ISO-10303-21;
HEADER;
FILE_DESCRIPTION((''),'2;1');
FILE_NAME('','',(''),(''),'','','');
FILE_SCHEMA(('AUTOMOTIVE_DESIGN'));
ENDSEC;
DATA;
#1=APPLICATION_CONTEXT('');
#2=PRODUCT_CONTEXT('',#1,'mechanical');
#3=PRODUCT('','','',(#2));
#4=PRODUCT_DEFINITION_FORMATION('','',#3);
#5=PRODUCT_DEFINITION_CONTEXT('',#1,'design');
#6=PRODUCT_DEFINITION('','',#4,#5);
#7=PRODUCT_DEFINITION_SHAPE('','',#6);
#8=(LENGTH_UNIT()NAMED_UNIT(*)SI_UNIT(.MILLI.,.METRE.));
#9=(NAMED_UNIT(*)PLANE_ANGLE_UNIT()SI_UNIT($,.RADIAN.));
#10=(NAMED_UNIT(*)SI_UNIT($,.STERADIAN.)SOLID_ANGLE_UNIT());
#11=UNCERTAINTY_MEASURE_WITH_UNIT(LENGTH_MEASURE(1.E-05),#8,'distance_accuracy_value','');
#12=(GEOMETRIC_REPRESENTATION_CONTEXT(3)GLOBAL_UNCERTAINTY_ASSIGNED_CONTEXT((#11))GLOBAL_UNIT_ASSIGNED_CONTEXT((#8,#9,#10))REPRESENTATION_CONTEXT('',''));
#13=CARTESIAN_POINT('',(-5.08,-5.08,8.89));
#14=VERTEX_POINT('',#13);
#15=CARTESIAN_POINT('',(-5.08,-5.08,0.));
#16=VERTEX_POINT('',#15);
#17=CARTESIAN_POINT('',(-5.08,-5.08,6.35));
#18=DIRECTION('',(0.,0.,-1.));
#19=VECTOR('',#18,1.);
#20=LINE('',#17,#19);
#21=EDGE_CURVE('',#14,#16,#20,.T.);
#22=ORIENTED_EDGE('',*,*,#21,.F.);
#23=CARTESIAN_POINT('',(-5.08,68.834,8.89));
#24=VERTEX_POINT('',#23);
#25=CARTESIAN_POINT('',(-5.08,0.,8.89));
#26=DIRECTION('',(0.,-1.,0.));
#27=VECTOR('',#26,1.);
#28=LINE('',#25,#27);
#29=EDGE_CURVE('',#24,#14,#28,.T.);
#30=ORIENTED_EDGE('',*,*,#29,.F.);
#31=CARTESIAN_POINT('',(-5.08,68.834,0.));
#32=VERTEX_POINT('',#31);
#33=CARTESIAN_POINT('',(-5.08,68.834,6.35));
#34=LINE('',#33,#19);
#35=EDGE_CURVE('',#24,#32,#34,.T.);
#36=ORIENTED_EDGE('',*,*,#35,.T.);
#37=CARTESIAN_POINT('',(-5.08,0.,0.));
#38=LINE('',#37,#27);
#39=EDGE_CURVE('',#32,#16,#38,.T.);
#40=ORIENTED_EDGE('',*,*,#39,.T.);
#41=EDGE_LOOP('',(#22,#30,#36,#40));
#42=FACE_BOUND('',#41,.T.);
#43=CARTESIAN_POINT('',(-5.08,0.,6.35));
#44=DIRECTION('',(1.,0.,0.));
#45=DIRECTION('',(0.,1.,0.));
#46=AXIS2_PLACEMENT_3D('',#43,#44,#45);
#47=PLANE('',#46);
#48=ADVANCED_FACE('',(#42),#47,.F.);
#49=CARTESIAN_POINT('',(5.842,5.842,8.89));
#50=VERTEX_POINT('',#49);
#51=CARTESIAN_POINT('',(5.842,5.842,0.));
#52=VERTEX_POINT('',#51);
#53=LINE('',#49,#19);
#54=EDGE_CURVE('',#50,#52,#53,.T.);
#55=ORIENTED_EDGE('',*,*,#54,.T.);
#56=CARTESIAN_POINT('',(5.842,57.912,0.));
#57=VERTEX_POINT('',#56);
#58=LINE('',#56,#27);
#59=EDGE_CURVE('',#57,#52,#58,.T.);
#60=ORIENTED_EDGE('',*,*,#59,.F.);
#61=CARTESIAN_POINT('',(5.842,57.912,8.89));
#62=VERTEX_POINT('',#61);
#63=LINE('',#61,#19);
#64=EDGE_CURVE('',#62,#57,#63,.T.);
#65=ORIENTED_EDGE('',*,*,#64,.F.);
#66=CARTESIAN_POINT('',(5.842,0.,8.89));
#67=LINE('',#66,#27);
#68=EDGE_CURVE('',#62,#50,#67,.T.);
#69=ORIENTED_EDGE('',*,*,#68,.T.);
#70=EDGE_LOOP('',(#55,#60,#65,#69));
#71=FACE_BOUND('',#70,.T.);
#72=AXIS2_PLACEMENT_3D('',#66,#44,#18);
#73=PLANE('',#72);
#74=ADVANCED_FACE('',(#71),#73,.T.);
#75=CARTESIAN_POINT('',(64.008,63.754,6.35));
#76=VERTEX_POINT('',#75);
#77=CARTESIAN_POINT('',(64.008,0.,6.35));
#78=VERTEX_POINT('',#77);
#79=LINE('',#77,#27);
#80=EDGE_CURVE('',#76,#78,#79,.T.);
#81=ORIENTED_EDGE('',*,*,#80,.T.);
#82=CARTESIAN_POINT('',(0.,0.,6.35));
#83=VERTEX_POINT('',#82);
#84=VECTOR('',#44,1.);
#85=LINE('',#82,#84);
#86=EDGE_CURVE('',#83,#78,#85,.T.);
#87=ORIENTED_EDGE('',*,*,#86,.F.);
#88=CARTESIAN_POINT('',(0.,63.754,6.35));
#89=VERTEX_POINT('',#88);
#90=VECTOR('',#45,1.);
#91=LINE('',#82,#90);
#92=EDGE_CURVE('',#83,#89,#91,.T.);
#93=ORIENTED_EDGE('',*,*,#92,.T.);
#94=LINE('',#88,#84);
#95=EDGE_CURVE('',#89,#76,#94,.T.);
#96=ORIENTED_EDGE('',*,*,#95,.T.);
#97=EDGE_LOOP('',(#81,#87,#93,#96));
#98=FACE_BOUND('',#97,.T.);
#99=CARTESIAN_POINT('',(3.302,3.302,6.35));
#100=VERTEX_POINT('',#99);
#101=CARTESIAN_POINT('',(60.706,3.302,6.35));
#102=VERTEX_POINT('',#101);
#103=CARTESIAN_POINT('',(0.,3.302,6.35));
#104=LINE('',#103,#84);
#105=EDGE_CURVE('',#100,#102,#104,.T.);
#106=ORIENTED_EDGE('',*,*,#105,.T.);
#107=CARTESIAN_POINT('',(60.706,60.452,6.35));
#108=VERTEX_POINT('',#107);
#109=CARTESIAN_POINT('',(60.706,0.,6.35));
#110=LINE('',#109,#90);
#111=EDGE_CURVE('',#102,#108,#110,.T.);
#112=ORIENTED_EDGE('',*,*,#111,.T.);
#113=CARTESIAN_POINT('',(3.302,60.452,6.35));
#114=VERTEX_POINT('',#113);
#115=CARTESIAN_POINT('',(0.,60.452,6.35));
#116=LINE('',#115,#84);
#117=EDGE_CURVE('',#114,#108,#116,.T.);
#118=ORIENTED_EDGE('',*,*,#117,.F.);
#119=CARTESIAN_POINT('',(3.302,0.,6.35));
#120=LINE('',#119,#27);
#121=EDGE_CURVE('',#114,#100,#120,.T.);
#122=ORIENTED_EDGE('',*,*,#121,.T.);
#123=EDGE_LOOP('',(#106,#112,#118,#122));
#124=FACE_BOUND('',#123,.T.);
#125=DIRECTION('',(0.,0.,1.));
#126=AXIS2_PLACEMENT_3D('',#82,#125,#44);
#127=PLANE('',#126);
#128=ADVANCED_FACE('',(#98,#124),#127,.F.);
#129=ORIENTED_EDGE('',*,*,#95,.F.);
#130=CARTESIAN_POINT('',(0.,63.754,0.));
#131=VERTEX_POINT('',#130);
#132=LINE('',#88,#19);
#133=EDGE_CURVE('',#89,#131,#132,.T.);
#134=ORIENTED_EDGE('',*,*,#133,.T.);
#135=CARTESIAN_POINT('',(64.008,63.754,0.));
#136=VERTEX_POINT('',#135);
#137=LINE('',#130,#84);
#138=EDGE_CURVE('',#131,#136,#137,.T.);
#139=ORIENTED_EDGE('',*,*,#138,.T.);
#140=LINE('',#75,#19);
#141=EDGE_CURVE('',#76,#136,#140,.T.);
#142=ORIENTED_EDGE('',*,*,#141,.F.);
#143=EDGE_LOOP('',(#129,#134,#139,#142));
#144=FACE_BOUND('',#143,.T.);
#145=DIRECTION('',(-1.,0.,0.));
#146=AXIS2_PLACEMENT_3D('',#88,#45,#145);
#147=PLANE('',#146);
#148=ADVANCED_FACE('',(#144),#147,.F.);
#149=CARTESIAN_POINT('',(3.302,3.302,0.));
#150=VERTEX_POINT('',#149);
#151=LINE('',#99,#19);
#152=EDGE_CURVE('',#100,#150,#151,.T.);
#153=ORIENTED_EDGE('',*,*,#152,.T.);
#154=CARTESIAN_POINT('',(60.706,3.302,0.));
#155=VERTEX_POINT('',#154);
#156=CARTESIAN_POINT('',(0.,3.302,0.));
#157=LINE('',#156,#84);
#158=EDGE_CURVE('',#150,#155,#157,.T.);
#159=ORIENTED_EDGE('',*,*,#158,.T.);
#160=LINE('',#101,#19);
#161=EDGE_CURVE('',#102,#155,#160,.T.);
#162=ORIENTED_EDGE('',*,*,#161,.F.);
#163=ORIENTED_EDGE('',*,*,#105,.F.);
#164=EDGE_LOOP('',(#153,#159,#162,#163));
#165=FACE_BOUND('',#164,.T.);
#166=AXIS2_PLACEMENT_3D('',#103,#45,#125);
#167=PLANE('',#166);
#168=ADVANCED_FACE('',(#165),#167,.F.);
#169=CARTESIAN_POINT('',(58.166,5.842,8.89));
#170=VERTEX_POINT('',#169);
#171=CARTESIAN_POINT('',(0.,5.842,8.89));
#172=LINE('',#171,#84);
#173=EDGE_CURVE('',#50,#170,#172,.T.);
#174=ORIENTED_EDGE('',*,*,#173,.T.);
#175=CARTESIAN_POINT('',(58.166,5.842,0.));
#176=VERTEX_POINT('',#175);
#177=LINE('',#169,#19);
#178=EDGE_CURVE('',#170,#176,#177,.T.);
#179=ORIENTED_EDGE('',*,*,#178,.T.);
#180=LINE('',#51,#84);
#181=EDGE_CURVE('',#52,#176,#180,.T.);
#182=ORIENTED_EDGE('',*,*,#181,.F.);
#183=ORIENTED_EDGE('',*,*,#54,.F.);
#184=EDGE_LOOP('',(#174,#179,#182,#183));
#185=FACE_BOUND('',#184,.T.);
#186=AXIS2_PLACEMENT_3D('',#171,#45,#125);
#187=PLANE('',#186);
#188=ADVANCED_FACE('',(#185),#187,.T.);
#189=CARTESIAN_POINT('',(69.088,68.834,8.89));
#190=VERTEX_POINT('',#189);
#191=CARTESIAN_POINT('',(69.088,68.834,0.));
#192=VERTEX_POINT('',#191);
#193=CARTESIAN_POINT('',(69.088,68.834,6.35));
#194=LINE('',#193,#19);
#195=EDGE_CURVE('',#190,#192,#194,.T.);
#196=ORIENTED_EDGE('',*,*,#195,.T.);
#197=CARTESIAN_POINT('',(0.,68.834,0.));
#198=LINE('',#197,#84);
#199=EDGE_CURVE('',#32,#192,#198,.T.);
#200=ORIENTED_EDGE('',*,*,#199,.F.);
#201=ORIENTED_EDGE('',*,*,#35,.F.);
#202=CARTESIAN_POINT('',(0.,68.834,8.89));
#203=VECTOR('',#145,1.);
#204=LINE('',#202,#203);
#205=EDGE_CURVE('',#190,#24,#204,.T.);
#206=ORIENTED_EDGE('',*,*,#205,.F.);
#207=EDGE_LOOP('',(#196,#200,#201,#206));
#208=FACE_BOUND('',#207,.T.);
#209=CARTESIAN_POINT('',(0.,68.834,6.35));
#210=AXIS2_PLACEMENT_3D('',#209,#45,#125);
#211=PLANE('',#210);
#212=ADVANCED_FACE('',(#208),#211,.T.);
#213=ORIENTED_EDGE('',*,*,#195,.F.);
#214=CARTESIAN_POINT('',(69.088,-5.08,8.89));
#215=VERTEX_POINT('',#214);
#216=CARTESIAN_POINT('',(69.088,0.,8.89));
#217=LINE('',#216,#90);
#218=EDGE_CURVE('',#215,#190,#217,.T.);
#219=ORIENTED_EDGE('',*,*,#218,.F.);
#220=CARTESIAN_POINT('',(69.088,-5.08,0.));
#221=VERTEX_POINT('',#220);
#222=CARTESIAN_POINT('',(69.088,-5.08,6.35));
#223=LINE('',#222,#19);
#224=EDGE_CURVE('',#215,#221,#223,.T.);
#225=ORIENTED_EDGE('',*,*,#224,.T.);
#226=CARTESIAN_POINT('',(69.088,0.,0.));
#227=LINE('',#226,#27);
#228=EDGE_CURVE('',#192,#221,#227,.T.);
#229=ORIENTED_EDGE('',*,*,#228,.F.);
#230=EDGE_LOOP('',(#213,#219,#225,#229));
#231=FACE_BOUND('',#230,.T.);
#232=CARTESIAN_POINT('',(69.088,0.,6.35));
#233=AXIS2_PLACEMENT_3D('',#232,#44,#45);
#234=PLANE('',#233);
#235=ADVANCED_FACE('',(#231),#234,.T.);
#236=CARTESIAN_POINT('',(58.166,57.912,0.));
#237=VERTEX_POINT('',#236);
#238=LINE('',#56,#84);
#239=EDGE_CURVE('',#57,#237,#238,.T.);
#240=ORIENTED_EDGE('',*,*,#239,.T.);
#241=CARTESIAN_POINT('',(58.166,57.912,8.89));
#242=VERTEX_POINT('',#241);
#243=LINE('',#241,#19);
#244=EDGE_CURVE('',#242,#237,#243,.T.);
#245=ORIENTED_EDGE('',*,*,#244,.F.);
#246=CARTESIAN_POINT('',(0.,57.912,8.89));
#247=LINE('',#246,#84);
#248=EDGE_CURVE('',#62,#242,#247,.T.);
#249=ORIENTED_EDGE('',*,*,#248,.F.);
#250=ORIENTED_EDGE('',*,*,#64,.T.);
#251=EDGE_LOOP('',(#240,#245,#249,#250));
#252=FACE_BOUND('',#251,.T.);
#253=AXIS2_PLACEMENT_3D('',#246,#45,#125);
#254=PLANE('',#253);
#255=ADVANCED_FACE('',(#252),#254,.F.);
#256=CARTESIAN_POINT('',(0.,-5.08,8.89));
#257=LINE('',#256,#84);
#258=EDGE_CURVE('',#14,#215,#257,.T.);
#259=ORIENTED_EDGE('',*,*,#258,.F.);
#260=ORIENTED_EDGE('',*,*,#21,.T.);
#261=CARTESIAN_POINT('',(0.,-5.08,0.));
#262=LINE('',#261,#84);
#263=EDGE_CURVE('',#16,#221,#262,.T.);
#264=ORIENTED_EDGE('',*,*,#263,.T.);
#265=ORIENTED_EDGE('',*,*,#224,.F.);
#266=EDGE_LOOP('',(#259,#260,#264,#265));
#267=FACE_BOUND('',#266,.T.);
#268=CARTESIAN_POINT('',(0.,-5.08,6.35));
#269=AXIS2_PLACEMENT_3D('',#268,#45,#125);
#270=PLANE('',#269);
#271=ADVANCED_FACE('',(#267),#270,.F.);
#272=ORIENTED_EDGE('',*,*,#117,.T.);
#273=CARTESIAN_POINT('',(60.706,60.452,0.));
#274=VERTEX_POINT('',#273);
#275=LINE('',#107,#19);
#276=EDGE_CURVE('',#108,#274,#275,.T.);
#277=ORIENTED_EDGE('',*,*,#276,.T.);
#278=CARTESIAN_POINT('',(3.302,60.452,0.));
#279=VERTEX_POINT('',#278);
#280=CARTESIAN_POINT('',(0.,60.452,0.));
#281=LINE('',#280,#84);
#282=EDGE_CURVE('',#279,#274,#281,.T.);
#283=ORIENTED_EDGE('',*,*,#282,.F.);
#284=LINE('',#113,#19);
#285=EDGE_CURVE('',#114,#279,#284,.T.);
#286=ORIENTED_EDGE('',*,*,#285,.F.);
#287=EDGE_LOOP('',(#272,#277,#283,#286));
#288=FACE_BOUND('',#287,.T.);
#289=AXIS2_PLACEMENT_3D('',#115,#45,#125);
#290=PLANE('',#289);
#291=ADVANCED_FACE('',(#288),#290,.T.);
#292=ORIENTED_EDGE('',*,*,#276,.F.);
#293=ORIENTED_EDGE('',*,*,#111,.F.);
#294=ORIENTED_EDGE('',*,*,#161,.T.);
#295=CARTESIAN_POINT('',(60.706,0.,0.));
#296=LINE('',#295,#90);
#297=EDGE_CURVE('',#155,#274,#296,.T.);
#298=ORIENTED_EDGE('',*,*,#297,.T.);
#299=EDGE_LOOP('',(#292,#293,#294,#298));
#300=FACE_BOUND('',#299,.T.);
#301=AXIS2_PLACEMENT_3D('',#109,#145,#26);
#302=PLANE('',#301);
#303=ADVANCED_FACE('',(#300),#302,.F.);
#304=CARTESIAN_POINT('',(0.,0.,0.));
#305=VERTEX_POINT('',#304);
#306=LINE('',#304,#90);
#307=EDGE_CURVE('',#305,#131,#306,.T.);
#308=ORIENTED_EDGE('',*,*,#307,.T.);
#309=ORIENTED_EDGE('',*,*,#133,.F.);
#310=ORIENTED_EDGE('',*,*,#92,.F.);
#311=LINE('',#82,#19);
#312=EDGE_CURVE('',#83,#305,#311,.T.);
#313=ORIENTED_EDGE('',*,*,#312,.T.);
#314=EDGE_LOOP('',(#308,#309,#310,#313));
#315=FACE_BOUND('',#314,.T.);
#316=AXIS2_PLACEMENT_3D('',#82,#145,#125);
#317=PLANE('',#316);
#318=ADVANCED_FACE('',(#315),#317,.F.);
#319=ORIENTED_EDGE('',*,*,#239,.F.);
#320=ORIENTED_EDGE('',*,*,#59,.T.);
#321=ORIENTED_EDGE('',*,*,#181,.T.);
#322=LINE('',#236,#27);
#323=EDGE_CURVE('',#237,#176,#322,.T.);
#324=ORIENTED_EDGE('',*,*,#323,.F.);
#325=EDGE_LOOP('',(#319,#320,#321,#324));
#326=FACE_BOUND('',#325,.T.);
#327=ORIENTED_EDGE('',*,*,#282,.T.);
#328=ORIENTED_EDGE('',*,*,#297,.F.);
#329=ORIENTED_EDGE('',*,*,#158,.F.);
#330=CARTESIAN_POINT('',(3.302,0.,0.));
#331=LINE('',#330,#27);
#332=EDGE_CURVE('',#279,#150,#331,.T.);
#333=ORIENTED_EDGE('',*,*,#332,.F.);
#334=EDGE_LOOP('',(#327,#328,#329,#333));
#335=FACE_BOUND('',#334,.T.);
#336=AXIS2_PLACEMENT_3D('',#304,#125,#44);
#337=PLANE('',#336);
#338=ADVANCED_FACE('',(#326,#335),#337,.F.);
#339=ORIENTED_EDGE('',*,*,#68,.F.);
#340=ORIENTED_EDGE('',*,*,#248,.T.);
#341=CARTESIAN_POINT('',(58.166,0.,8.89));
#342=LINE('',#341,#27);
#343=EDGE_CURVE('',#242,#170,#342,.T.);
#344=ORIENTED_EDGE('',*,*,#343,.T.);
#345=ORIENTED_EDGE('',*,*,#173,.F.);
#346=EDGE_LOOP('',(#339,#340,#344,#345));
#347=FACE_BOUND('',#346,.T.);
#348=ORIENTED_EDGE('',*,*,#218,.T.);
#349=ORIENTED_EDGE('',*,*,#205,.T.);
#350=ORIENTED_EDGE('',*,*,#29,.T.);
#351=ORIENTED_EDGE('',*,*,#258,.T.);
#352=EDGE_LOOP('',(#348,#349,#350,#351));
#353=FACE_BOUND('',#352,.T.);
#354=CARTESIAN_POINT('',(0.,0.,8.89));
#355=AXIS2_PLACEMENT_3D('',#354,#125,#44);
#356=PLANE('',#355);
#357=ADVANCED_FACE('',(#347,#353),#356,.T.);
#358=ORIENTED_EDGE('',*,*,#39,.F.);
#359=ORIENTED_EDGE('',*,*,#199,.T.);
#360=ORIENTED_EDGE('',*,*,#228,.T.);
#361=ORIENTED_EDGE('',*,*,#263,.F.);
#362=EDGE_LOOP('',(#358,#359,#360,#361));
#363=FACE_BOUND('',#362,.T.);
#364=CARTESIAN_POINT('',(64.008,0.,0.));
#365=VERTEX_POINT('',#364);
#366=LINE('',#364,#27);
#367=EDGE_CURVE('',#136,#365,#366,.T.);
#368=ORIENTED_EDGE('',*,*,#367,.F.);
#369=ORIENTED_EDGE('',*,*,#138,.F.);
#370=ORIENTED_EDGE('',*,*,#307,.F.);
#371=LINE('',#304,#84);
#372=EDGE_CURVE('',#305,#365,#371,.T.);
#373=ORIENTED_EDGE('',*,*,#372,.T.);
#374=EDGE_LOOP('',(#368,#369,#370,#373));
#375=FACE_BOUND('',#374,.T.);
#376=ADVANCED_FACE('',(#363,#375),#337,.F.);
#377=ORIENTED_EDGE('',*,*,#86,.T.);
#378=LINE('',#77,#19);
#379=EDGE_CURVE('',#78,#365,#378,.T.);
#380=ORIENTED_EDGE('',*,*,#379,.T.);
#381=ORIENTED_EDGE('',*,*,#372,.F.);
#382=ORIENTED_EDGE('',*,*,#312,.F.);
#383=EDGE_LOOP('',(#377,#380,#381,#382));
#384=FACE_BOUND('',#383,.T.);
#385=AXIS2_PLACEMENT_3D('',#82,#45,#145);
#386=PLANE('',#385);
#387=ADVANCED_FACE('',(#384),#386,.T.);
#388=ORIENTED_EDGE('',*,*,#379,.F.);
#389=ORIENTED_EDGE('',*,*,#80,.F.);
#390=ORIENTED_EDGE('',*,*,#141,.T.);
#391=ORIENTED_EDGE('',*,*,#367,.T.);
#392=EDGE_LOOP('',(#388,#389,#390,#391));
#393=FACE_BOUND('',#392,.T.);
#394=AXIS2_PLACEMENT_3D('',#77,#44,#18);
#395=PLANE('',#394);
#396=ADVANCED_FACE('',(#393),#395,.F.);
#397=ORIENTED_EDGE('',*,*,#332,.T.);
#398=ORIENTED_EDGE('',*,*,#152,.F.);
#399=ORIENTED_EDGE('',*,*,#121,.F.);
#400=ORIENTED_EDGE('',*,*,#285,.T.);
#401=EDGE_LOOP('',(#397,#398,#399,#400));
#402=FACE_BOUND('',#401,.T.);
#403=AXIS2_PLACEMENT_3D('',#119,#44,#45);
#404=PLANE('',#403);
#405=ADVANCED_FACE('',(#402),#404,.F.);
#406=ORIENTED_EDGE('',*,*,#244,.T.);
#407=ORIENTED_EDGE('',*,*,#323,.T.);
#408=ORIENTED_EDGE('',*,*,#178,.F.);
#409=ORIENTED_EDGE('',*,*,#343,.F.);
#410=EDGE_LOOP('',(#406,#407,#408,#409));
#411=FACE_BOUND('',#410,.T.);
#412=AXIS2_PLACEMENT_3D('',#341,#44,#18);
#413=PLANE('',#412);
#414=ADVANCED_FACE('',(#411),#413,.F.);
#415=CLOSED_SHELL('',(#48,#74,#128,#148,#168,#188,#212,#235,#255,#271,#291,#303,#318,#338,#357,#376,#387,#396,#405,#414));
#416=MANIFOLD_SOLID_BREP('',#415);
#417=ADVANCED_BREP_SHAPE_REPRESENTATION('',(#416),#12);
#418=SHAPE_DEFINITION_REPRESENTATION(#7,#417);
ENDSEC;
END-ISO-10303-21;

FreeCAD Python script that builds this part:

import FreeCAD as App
import Part
import Sketcher

V = App.Vector
Q = App.Units.Quantity

doc = App.newDocument("Part")
body = doc.addObject("PartDesign::Body", "Body")

# Sketch on XY plane
sketch1 = body.newObject("Sketcher::SketchObject", "Sketch")
sketch1.AttachmentSupport = (doc.getObject("XY_Plane"), [""])
sketch1.MapMode = "FlatFace"
sketch1.addGeometry([
    Part.LineSegment(V(3, 60, 0), V(3, 3, 0)),  # 0
    Part.LineSegment(V(3, 3, 0), V(61, 3, 0)),  # 1
    Part.LineSegment(V(61, 3, 0), V(61, 60, 0)),  # 2
    Part.LineSegment(V(61, 60, 0), V(3, 60, 0)),  # 3
    Part.LineSegment(V(58, 6, 0), V(6, 6, 0)),  # 4
    Part.LineSegment(V(6, 6, 0), V(6, 58, 0)),  # 5
    Part.LineSegment(V(6, 58, 0), V(58, 58, 0)),  # 6
    Part.LineSegment(V(58, 58, 0), V(58, 6, 0)),  # 7
], False)
sketch1.addConstraint([
    Sketcher.Constraint("Coincident", 0, 2, 1, 1),
    Sketcher.Constraint("Coincident", 1, 2, 2, 1),
    Sketcher.Constraint("Coincident", 2, 2, 3, 1),
    Sketcher.Constraint("Coincident", 3, 2, 0, 1),
    Sketcher.Constraint("Coincident", 4, 2, 5, 1),
    Sketcher.Constraint("Coincident", 5, 2, 6, 1),
    Sketcher.Constraint("Coincident", 6, 2, 7, 1),
    Sketcher.Constraint("Coincident", 7, 2, 4, 1),
    Sketcher.Constraint("Vertical", 0),
    Sketcher.Constraint("Horizontal", 1),
    Sketcher.Constraint("Vertical", 2),
    Sketcher.Constraint("Horizontal", 3),
    Sketcher.Constraint("Horizontal", 4),
    Sketcher.Constraint("Vertical", 5),
    Sketcher.Constraint("Horizontal", 6),
    Sketcher.Constraint("Vertical", 7),
    Sketcher.Constraint("DistanceX", 1, 1, 1, 2, Q("2.26 in")),
    Sketcher.Constraint("DistanceX", 4, 2, 4, 1, Q("2.06 in")),
    Sketcher.Constraint("DistanceY", 0, 2, 0, 1, Q("2.25 in")),
    Sketcher.Constraint("DistanceY", 5, 1, 5, 2, Q("2.05 in")),
    Sketcher.Constraint("DistanceX", 0, 2, 4, 2, Q("0.1 in")),
    Sketcher.Constraint("DistanceY", 0, 2, 4, 2, Q("0.1 in")),
    Sketcher.Constraint("DistanceX", -1, 1, 0, 2, Q("0.13 in")),
    Sketcher.Constraint("DistanceY", -1, 1, 0, 2, Q("0.13 in")),
])
pad1 = body.newObject("PartDesign::Pad", "Pad")
pad1.Profile = sketch1
pad1.Length = Q("0.25 in")
body2 = doc.addObject("PartDesign::Body", "Body001")

# Sketch on XY plane
sketch2 = body2.newObject("Sketcher::SketchObject", "Sketch001")
sketch2.AttachmentSupport = (doc.getObject("XY_Plane001"), [""])
sketch2.MapMode = "FlatFace"
sketch2.addGeometry([
    Part.LineSegment(V(-5, 69, 0), V(-5, -5, 0)),  # 0
    Part.LineSegment(V(-5, -5, 0), V(69, -5, 0)),  # 1
    Part.LineSegment(V(69, -5, 0), V(69, 69, 0)),  # 2
    Part.LineSegment(V(69, 69, 0), V(-5, 69, 0)),  # 3
    Part.LineSegment(V(64, 0, 0), V(0, 0, 0)),  # 4
    Part.LineSegment(V(0, 0, 0), V(0, 64, 0)),  # 5
    Part.LineSegment(V(0, 64, 0), V(64, 64, 0)),  # 6
    Part.LineSegment(V(64, 64, 0), V(64, 0, 0)),  # 7
], False)
sketch2.addConstraint([
    Sketcher.Constraint("Coincident", 0, 2, 1, 1),
    Sketcher.Constraint("Coincident", 1, 2, 2, 1),
    Sketcher.Constraint("Coincident", 2, 2, 3, 1),
    Sketcher.Constraint("Coincident", 3, 2, 0, 1),
    Sketcher.Constraint("Coincident", 4, 2, 5, 1),
    Sketcher.Constraint("Coincident", 5, 2, 6, 1),
    Sketcher.Constraint("Coincident", 6, 2, 7, 1),
    Sketcher.Constraint("Coincident", 7, 2, 4, 1),
    Sketcher.Constraint("Vertical", 0),
    Sketcher.Constraint("Horizontal", 1),
    Sketcher.Constraint("Vertical", 2),
    Sketcher.Constraint("Horizontal", 3),
    Sketcher.Constraint("Horizontal", 4),
    Sketcher.Constraint("Vertical", 5),
    Sketcher.Constraint("Horizontal", 6),
    Sketcher.Constraint("Vertical", 7),
    Sketcher.Constraint("Coincident", 4, 2, -1, 1),
    Sketcher.Constraint("DistanceX", 1, 1, 1, 2, Q("2.92 in")),
    Sketcher.Constraint("DistanceX", 4, 2, 4, 1, Q("2.52 in")),
    Sketcher.Constraint("DistanceY", 0, 2, 0, 1, Q("2.91 in")),
    Sketcher.Constraint("DistanceY", 5, 1, 5, 2, Q("2.51 in")),
    Sketcher.Constraint("DistanceX", 0, 2, -1, 1, Q("0.2 in")),
    Sketcher.Constraint("DistanceY", 0, 2, -1, 1, Q("0.2 in")),
])
pad2 = body2.newObject("PartDesign::Pad", "Pad001")
pad2.Profile = sketch2
pad2.Length = Q("0.25 in")
body.AllowCompound = True
doc.recompute()

boolean = body.newObject("PartDesign::Boolean", "Boolean")
boolean.Type = "Fuse"
boolean.addObjects([body2])

# Sketch on XY plane
sketch3 = body.newObject("Sketcher::SketchObject", "Sketch002")
sketch3.AttachmentSupport = (doc.getObject("XY_Plane"), [""])
sketch3.MapMode = "FlatFace"
sketch3.AttachmentOffset = App.Placement(V(0, 0, 0.25 * 25.4), App.Rotation())
sketch3.addGeometry([
    Part.LineSegment(V(-5, 69, 0), V(-5, -5, 0)),  # 0
    Part.LineSegment(V(-5, -5, 0), V(69, -5, 0)),  # 1
    Part.LineSegment(V(69, -5, 0), V(69, 69, 0)),  # 2
    Part.LineSegment(V(69, 69, 0), V(-5, 69, 0)),  # 3
    Part.LineSegment(V(58, 6, 0), V(6, 6, 0)),  # 4
    Part.LineSegment(V(6, 6, 0), V(6, 58, 0)),  # 5
    Part.LineSegment(V(6, 58, 0), V(58, 58, 0)),  # 6
    Part.LineSegment(V(58, 58, 0), V(58, 6, 0)),  # 7
], False)
sketch3.addConstraint([
    Sketcher.Constraint("Coincident", 0, 2, 1, 1),
    Sketcher.Constraint("Coincident", 1, 2, 2, 1),
    Sketcher.Constraint("Coincident", 2, 2, 3, 1),
    Sketcher.Constraint("Coincident", 3, 2, 0, 1),
    Sketcher.Constraint("Coincident", 4, 2, 5, 1),
    Sketcher.Constraint("Coincident", 5, 2, 6, 1),
    Sketcher.Constraint("Coincident", 6, 2, 7, 1),
    Sketcher.Constraint("Coincident", 7, 2, 4, 1),
    Sketcher.Constraint("Vertical", 0),
    Sketcher.Constraint("Horizontal", 1),
    Sketcher.Constraint("Vertical", 2),
    Sketcher.Constraint("Horizontal", 3),
    Sketcher.Constraint("Horizontal", 4),
    Sketcher.Constraint("Vertical", 5),
    Sketcher.Constraint("Horizontal", 6),
    Sketcher.Constraint("Vertical", 7),
    Sketcher.Constraint("DistanceX", 1, 1, 1, 2, Q("2.92 in")),
    Sketcher.Constraint("DistanceX", 4, 2, 4, 1, Q("2.06 in")),
    Sketcher.Constraint("DistanceY", 0, 2, 0, 1, Q("2.91 in")),
    Sketcher.Constraint("DistanceY", 5, 1, 5, 2, Q("2.05 in")),
    Sketcher.Constraint("DistanceX", 0, 2, -1, 1, Q("0.2 in")),
    Sketcher.Constraint("DistanceY", 0, 2, -1, 1, Q("0.2 in")),
    Sketcher.Constraint("DistanceX", -1, 1, 4, 2, Q("0.23 in")),
    Sketcher.Constraint("DistanceY", -1, 1, 4, 2, Q("0.23 in")),
])
pad3 = body.newObject("PartDesign::Pad", "Pad002")
pad3.Profile = sketch3
pad3.Length = Q("0.1 in")

doc.recompute()
